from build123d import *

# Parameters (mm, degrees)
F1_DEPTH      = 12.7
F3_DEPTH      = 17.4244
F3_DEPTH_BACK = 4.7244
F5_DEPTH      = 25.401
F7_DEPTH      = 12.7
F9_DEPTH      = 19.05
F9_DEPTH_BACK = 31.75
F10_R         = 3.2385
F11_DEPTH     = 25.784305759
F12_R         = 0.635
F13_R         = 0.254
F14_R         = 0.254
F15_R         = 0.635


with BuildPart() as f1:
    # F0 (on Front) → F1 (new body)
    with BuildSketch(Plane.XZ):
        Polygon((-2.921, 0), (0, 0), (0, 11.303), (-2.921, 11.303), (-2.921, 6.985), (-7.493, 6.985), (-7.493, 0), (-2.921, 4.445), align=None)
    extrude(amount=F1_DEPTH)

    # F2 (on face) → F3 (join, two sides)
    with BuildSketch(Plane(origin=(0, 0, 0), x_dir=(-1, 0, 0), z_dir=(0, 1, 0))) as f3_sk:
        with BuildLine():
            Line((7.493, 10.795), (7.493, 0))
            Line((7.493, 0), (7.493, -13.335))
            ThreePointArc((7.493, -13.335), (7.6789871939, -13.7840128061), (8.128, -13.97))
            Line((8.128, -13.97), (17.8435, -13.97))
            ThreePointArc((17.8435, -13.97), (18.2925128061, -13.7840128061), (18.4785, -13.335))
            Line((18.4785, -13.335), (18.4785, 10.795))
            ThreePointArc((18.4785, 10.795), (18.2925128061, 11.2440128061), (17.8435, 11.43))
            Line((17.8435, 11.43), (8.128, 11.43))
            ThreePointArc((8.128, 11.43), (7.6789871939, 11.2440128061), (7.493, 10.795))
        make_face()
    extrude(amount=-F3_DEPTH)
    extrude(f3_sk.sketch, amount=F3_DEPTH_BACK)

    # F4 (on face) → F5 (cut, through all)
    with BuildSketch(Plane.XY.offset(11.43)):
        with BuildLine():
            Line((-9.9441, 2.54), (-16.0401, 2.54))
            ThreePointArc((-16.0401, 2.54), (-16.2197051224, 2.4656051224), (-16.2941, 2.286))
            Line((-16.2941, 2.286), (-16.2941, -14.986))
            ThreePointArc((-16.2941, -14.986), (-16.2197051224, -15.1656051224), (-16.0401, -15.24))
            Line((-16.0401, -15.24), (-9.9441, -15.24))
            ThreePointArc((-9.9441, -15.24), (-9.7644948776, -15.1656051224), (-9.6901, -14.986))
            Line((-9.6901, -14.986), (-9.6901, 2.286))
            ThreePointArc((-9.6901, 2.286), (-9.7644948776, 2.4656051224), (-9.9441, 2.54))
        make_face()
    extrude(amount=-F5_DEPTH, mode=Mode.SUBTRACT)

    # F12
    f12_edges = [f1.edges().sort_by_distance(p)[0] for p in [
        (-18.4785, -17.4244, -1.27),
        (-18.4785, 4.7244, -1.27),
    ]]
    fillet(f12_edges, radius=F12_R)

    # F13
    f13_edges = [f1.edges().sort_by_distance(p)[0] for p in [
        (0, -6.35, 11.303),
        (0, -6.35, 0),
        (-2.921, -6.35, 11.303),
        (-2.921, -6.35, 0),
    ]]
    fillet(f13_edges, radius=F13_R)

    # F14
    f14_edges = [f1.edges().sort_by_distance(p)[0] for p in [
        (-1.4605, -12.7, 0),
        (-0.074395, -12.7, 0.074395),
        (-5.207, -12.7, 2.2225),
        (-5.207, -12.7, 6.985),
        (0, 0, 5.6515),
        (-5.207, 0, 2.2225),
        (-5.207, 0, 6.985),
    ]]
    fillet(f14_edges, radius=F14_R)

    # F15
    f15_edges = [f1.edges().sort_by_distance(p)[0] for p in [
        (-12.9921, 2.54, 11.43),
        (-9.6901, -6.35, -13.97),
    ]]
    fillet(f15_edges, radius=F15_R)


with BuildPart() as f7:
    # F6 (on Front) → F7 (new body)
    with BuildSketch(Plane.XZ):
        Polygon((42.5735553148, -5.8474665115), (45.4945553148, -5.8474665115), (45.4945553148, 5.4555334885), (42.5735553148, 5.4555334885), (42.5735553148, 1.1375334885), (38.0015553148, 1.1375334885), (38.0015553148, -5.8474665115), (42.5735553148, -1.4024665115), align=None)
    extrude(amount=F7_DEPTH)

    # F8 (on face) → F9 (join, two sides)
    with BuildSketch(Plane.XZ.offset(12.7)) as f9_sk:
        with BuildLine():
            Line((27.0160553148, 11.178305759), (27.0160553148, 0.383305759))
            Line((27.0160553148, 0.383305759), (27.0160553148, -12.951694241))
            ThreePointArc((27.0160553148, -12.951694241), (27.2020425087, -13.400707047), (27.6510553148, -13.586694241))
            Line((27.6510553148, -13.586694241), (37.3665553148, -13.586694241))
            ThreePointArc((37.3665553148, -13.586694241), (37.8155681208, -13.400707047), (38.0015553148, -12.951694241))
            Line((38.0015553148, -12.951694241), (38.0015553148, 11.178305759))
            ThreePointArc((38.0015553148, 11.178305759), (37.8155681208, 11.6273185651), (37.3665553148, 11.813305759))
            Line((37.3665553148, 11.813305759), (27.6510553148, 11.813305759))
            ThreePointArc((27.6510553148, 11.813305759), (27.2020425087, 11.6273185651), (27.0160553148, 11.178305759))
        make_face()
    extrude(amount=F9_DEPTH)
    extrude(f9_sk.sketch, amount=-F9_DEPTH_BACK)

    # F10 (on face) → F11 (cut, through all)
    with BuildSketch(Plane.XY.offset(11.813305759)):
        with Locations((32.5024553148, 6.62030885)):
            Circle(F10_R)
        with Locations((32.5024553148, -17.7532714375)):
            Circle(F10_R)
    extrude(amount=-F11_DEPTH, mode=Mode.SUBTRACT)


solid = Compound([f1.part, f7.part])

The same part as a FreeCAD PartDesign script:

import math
import FreeCAD as App
import Part
import Sketcher

V = App.Vector
Q = App.Units.Quantity


def edges_at(feature, points):
    """Names of the edges that pass closest to the given points."""
    edges = feature.Shape.Edges
    near = lambda p: min(range(len(edges)), key=lambda i: edges[i].distToShape(Part.Vertex(*p))[0])
    return sorted({f"Edge{near(p) + 1}" for p in points})


def add_polygon(sketch, points):
    """Adds a closed chain of lines whose ends are joined by coincident constraints."""
    first, n = sketch.GeometryCount, len(points)
    for a, b in zip(points, points[1:] + points[:1]):
        sketch.addGeometry(Part.LineSegment(App.Vector(*a, 0), App.Vector(*b, 0)), False)
    for i in range(n):
        sketch.addConstraint(Sketcher.Constraint("Coincident", first + i, 2, first + (i + 1) % n, 1))

doc = App.newDocument("Part")
body = doc.addObject("PartDesign::Body", "Body")

sketch1 = doc.addObject("Sketcher::SketchObject", "Sketch")
body.addObject(sketch1)
sketch1.AttachmentSupport = (doc.XZ_Plane, [""])
sketch1.MapMode = "FlatFace"
add_polygon(sketch1, [(-2.921, 0), (0, 0), (0, 11.303), (-2.921, 11.303), (-2.921, 6.985), (-7.493, 6.985), (-7.493, 0), (-2.921, 4.445)])
sketch1.addConstraint(Sketcher.Constraint("Horizontal", 0))
sketch1.addConstraint(Sketcher.Constraint("Vertical", 1))
sketch1.addConstraint(Sketcher.Constraint("Horizontal", 2))
sketch1.addConstraint(Sketcher.Constraint("Vertical", 3))
sketch1.addConstraint(Sketcher.Constraint("Horizontal", 4))
sketch1.addConstraint(Sketcher.Constraint("Vertical", 5))
sketch1.addConstraint(Sketcher.Constraint("Vertical", 7))
sketch1.addConstraint(Sketcher.Constraint("Coincident", 0, 2, -1, 1))
sketch1.addConstraint(Sketcher.Constraint("PointOnObject", 5, 2, -1))
sketch1.addConstraint(Sketcher.Constraint("Vertical", 3, 2, 6, 2))
sketch1.addConstraint(Sketcher.Constraint("DistanceX", 4, 2, 4, 1, Q("0.18 in")))
sketch1.addConstraint(Sketcher.Constraint("DistanceY", 3, 2, 3, 1, Q("0.17 in")))
sketch1.addConstraint(Sketcher.Constraint("DistanceY", 6, 2, 3, 2, Q("0.1 in")))
sketch1.addConstraint(Sketcher.Constraint("DistanceX", 0, 1, 0, 2, Q("0.115 in")))
sketch1.addConstraint(Sketcher.Constraint("DistanceY", 1, 1, 1, 2, Q("0.445 in")))
pad1 = doc.addObject("PartDesign::Pad", "Pad")
body.addObject(pad1)
pad1.Profile = sketch1
pad1.Length = Q("0.5 in")

sketch2 = doc.addObject("Sketcher::SketchObject", "Sketch001")
body.addObject(sketch2)
sketch2.AttachmentSupport = (doc.XZ_Plane, [""])
sketch2.MapMode = "FlatFace"
sketch2.addGeometry(Part.LineSegment(V(-7.493, 10.795, 0), V(-7.493, -13.335, 0)), False)
sketch2.addGeometry(Part.ArcOfCircle(Part.Circle(V(-8.128, -13.335, 0), V(0, 0, 1), 0.635), math.radians(-90), math.radians(0)), False)
sketch2.addGeometry(Part.LineSegment(V(-8.128, -13.97, 0), V(-17.8435, -13.97, 0)), False)
sketch2.addGeometry(Part.ArcOfCircle(Part.Circle(V(-17.8435, -13.335, 0), V(0, 0, 1), 0.635), math.radians(180), math.radians(270)), False)
sketch2.addGeometry(Part.LineSegment(V(-18.4785, -13.335, 0), V(-18.4785, 10.795, 0)), False)
sketch2.addGeometry(Part.ArcOfCircle(Part.Circle(V(-17.8435, 10.795, 0), V(0, 0, 1), 0.635), math.radians(90), math.radians(180)), False)
sketch2.addGeometry(Part.LineSegment(V(-17.8435, 11.43, 0), V(-8.128, 11.43, 0)), False)
sketch2.addGeometry(Part.ArcOfCircle(Part.Circle(V(-8.128, 10.795, 0), V(0, 0, 1), 0.635), math.radians(0), math.radians(90)), False)
sketch2.addConstraint(Sketcher.Constraint("Tangent", 0, 2, 1, 2))
sketch2.addConstraint(Sketcher.Constraint("Tangent", 1, 1, 2, 1))
sketch2.addConstraint(Sketcher.Constraint("Tangent", 2, 2, 3, 2))
sketch2.addConstraint(Sketcher.Constraint("Tangent", 3, 1, 4, 1))
sketch2.addConstraint(Sketcher.Constraint("Tangent", 4, 2, 5, 2))
sketch2.addConstraint(Sketcher.Constraint("Tangent", 5, 1, 6, 1))
sketch2.addConstraint(Sketcher.Constraint("Tangent", 6, 2, 7, 2))
sketch2.addConstraint(Sketcher.Constraint("Tangent", 7, 1, 0, 1))
sketch2.addConstraint(Sketcher.Constraint("Vertical", 0))
sketch2.addConstraint(Sketcher.Constraint("Horizontal", 2))
sketch2.addConstraint(Sketcher.Constraint("Vertical", 4))
sketch2.addConstraint(Sketcher.Constraint("Horizontal", 6))
sketch2.addConstraint(Sketcher.Constraint("Equal", 1, 3))
sketch2.addConstraint(Sketcher.Constraint("Equal", 3, 5))
sketch2.addConstraint(Sketcher.Constraint("Equal", 5, 7))
sketch2.addConstraint(Sketcher.Constraint("Radius", 1, Q("0.025 in")))
sketch2.addConstraint(Sketcher.Constraint("DistanceY", 0, 2, 0, 1, Q("0.95 in")))
sketch2.addConstraint(Sketcher.Constraint("DistanceX", 1, 3, -1, 1, Q("0.32 in")))
sketch2.addConstraint(Sketcher.Constraint("DistanceY", 1, 1, -1, 1, Q("0.55 in")))
sketch2.addConstraint(Sketcher.Constraint("DistanceX", 2, 2, 2, 1, Q("0.3825 in")))
pad2 = doc.addObject("PartDesign::Pad", "Pad001")
body.addObject(pad2)
pad2.Profile = sketch2
pad2.Type = "TwoLengths"
pad2.Length = Q("0.686 in")
pad2.Length2 = Q("0.186 in")

sketch3 = doc.addObject("Sketcher::SketchObject", "Sketch002")
body.addObject(sketch3)
sketch3.AttachmentSupport = (doc.XY_Plane, [""])
sketch3.MapMode = "FlatFace"
sketch3.AttachmentOffset = App.Placement(V(0, 0, 0.45 * 25.4), App.Rotation())
sketch3.addGeometry(Part.LineSegment(V(-9.9441, 2.54, 0), V(-16.0401, 2.54, 0)), False)
sketch3.addGeometry(Part.ArcOfCircle(Part.Circle(V(-16.0401, 2.286, 0), V(0, 0, 1), 0.254), math.radians(90), math.radians(180)), False)
sketch3.addGeometry(Part.LineSegment(V(-16.2941, 2.286, 0), V(-16.2941, -14.986, 0)), False)
sketch3.addGeometry(Part.ArcOfCircle(Part.Circle(V(-16.0401, -14.986, 0), V(0, 0, 1), 0.254), math.radians(180), math.radians(270)), False)
sketch3.addGeometry(Part.LineSegment(V(-16.0401, -15.24, 0), V(-9.9441, -15.24, 0)), False)
sketch3.addGeometry(Part.ArcOfCircle(Part.Circle(V(-9.9441, -14.986, 0), V(0, 0, 1), 0.254), math.radians(-90), math.radians(0)), False)
sketch3.addGeometry(Part.LineSegment(V(-9.6901, -14.986, 0), V(-9.6901, 2.286, 0)), False)
sketch3.addGeometry(Part.ArcOfCircle(Part.Circle(V(-9.9441, 2.286, 0), V(0, 0, 1), 0.254), math.radians(0), math.radians(90)), False)
sketch3.addConstraint(Sketcher.Constraint("Tangent", 0, 2, 1, 1))
sketch3.addConstraint(Sketcher.Constraint("Tangent", 1, 2, 2, 1))
sketch3.addConstraint(Sketcher.Constraint("Tangent", 2, 2, 3, 1))
sketch3.addConstraint(Sketcher.Constraint("Tangent", 3, 2, 4, 1))
sketch3.addConstraint(Sketcher.Constraint("Tangent", 4, 2, 5, 1))
sketch3.addConstraint(Sketcher.Constraint("Tangent", 5, 2, 6, 1))
sketch3.addConstraint(Sketcher.Constraint("Tangent", 6, 2, 7, 1))
sketch3.addConstraint(Sketcher.Constraint("Tangent", 7, 2, 0, 1))
sketch3.addConstraint(Sketcher.Constraint("Horizontal", 0))
sketch3.addConstraint(Sketcher.Constraint("Vertical", 2))
sketch3.addConstraint(Sketcher.Constraint("Horizontal", 4))
sketch3.addConstraint(Sketcher.Constraint("Vertical", 6))
sketch3.addConstraint(Sketcher.Constraint("Equal", 1, 3))
sketch3.addConstraint(Sketcher.Constraint("Equal", 3, 5))
sketch3.addConstraint(Sketcher.Constraint("Equal", 5, 7))
sketch3.addConstraint(Sketcher.Constraint("Radius", 1, Q("0.01 in")))
sketch3.addConstraint(Sketcher.Constraint("DistanceX", 0, 2, 0, 1, Q("0.24 in")))
sketch3.addConstraint(Sketcher.Constraint("DistanceY", 2, 2, 2, 1, Q("0.68 in")))
sketch3.addConstraint(Sketcher.Constraint("DistanceY", -1, 1, 0, 2, Q("0.1 in")))
sketch3.addConstraint(Sketcher.Constraint("DistanceX", 1, 3, -1, 1, Q("0.6315 in")))
pocket1 = doc.addObject("PartDesign::Pocket", "Pocket")
body.addObject(pocket1)
pocket1.Profile = sketch3
pocket1.Type = "ThroughAll"
doc.recompute()

fillet = doc.addObject("PartDesign::Fillet", "Fillet")
body.addObject(fillet)
fillet.Base = (pocket1, edges_at(pocket1, [(-18.479, -17.424, -1.27), (-18.479, 4.724, -1.27)]))
fillet.Radius = Q("0.025 in")
doc.recompute()

fillet2 = doc.addObject("PartDesign::Fillet", "Fillet001")
body.addObject(fillet2)
fillet2.Base = (fillet, edges_at(fillet, [
    (0, -6.35, 11.303),
    (0, -6.35, 0),
    (-2.921, -6.35, 11.303),
    (-2.921, -6.35, 0),
]))
fillet2.Radius = Q("0.01 in")
doc.recompute()

fillet3 = doc.addObject("PartDesign::Fillet", "Fillet002")
body.addObject(fillet3)
fillet3.Base = (fillet2, edges_at(fillet2, [
    (-1.46, -12.7, 0),
    (-0.074, -12.7, 0.074),
    (-5.207, -12.7, 2.223),
    (-5.207, -12.7, 6.985),
    (0, 0, 5.652),
    (-5.207, 0, 2.223),
    (-5.207, 0, 6.985),
]))
fillet3.Radius = Q("0.01 in")
doc.recompute()

fillet4 = doc.addObject("PartDesign::Fillet", "Fillet003")
body.addObject(fillet4)
fillet4.Base = (fillet3, edges_at(fillet3, [(-12.992, 2.54, 11.43), (-9.69, -6.35, -13.97)]))
fillet4.Radius = Q("0.025 in")
body2 = doc.addObject("PartDesign::Body", "Body001")

sketch4 = doc.addObject("Sketcher::SketchObject", "Sketch003")
body2.addObject(sketch4)
sketch4.AttachmentSupport = (doc.getObject("XZ_Plane001"), [""])
sketch4.MapMode = "FlatFace"
add_polygon(sketch4, [(42.573555, -5.847467), (45.494555, -5.847467), (45.494555, 5.455533), (42.573555, 5.455533), (42.573555, 1.137533), (38.001555, 1.137533), (38.001555, -5.847467), (42.573555, -1.402467)])
sketch4.addConstraint(Sketcher.Constraint("Horizontal", 0))
sketch4.addConstraint(Sketcher.Constraint("Vertical", 1))
sketch4.addConstraint(Sketcher.Constraint("Horizontal", 2))
sketch4.addConstraint(Sketcher.Constraint("Vertical", 3))
sketch4.addConstraint(Sketcher.Constraint("Horizontal", 4))
sketch4.addConstraint(Sketcher.Constraint("Vertical", 5))
sketch4.addConstraint(Sketcher.Constraint("Vertical", 7))
sketch4.addConstraint(Sketcher.Constraint("Horizontal", 0, 2, 5, 2))
sketch4.addConstraint(Sketcher.Constraint("Vertical", 3, 2, 6, 2))
sketch4.addConstraint(Sketcher.Constraint("DistanceX", 4, 2, 4, 1, Q("0.18 in")))
sketch4.addConstraint(Sketcher.Constraint("DistanceY", 3, 2, 3, 1, Q("0.17 in")))
sketch4.addConstraint(Sketcher.Constraint("DistanceY", 6, 2, 3, 2, Q("0.1 in")))
sketch4.addConstraint(Sketcher.Constraint("DistanceX", 0, 1, 0, 2, Q("0.115 in")))
sketch4.addConstraint(Sketcher.Constraint("DistanceY", 1, 1, 1, 2, Q("0.445 in")))
sketch4.addConstraint(Sketcher.Constraint("DistanceX", -1, 1, 0, 2, Q("45.494555 mm")))
sketch4.addConstraint(Sketcher.Constraint("DistanceY", 0, 2, -1, 1, Q("5.847467 mm")))
pad3 = doc.addObject("PartDesign::Pad", "Pad002")
body2.addObject(pad3)
pad3.Profile = sketch4
pad3.Length = Q("0.5 in")

sketch5 = doc.addObject("Sketcher::SketchObject", "Sketch004")
body2.addObject(sketch5)
sketch5.AttachmentSupport = (doc.getObject("XZ_Plane001"), [""])
sketch5.MapMode = "FlatFace"
sketch5.AttachmentOffset = App.Placement(V(0, 0, 0.5 * 25.4), App.Rotation())
sketch5.addGeometry(Part.LineSegment(V(27.016055, 11.178306, 0), V(27.016055, -12.951694, 0)), False)
sketch5.addGeometry(Part.ArcOfCircle(Part.Circle(V(27.651055, -12.951694, 0), V(0, 0, 1), 0.635), math.radians(180), math.radians(270)), False)
sketch5.addGeometry(Part.LineSegment(V(27.651055, -13.586694, 0), V(37.366555, -13.586694, 0)), False)
sketch5.addGeometry(Part.ArcOfCircle(Part.Circle(V(37.366555, -12.951694, 0), V(0, 0, 1), 0.635), math.radians(-90), math.radians(0)), False)
sketch5.addGeometry(Part.LineSegment(V(38.001555, -12.951694, 0), V(38.001555, 11.178306, 0)), False)
sketch5.addGeometry(Part.ArcOfCircle(Part.Circle(V(37.366555, 11.178306, 0), V(0, 0, 1), 0.635), math.radians(0), math.radians(90)), False)
sketch5.addGeometry(Part.LineSegment(V(37.366555, 11.813306, 0), V(27.651055, 11.813306, 0)), False)
sketch5.addGeometry(Part.ArcOfCircle(Part.Circle(V(27.651055, 11.178306, 0), V(0, 0, 1), 0.635), math.radians(90), math.radians(180)), False)
sketch5.addConstraint(Sketcher.Constraint("Tangent", 0, 2, 1, 1))
sketch5.addConstraint(Sketcher.Constraint("Tangent", 1, 2, 2, 1))
sketch5.addConstraint(Sketcher.Constraint("Tangent", 2, 2, 3, 1))
sketch5.addConstraint(Sketcher.Constraint("Tangent", 3, 2, 4, 1))
sketch5.addConstraint(Sketcher.Constraint("Tangent", 4, 2, 5, 1))
sketch5.addConstraint(Sketcher.Constraint("Tangent", 5, 2, 6, 1))
sketch5.addConstraint(Sketcher.Constraint("Tangent", 6, 2, 7, 1))
sketch5.addConstraint(Sketcher.Constraint("Tangent", 7, 2, 0, 1))
sketch5.addConstraint(Sketcher.Constraint("Vertical", 0))
sketch5.addConstraint(Sketcher.Constraint("Horizontal", 2))
sketch5.addConstraint(Sketcher.Constraint("Vertical", 4))
sketch5.addConstraint(Sketcher.Constraint("Horizontal", 6))
sketch5.addConstraint(Sketcher.Constraint("Equal", 1, 3))
sketch5.addConstraint(Sketcher.Constraint("Equal", 3, 5))
sketch5.addConstraint(Sketcher.Constraint("Equal", 5, 7))
sketch5.addConstraint(Sketcher.Constraint("Radius", 1, Q("0.025 in")))
sketch5.addConstraint(Sketcher.Constraint("DistanceY", 0, 2, 0, 1, Q("0.95 in")))
sketch5.addConstraint(Sketcher.Constraint("DistanceX", 2, 1, 2, 2, Q("0.3825 in")))
sketch5.addConstraint(Sketcher.Constraint("DistanceX", -1, 1, 1, 3, Q("27.651055 mm")))
sketch5.addConstraint(Sketcher.Constraint("DistanceY", 1, 3, -1, 1, Q("12.951694 mm")))
pad4 = doc.addObject("PartDesign::Pad", "Pad003")
body2.addObject(pad4)
pad4.Profile = sketch5
pad4.Type = "TwoLengths"
pad4.Length = Q("0.75 in")
pad4.Length2 = Q("1.25 in")

sketch6 = doc.addObject("Sketcher::SketchObject", "Sketch005")
body2.addObject(sketch6)
sketch6.AttachmentSupport = (doc.getObject("XY_Plane001"), [""])
sketch6.MapMode = "FlatFace"
sketch6.AttachmentOffset = App.Placement(V(0, 0, 11.813306), App.Rotation())
sketch6.addGeometry(Part.Circle(V(32.502455, 6.620309, 0), V(0, 0, 1), 3.2385), False)
sketch6.addGeometry(Part.Circle(V(32.502455, -17.753271, 0), V(0, 0, 1), 3.2385), False)
sketch6.addConstraint(Sketcher.Constraint("Equal", 0, 1))
sketch6.addConstraint(Sketcher.Constraint("Vertical", 0, 3, 1, 3))
sketch6.addConstraint(Sketcher.Constraint("Diameter", 0, Q("0.255 in")))
sketch6.addConstraint(Sketcher.Constraint("DistanceY", -1, 1, 0, 3, Q("6.620309 mm")))
sketch6.addConstraint(Sketcher.Constraint("DistanceY", 1, 3, -1, 1, Q("17.753271 mm")))
sketch6.addConstraint(Sketcher.Constraint("DistanceX", -1, 1, 0, 3, Q("32.502455 mm")))
pocket2 = doc.addObject("PartDesign::Pocket", "Pocket001")
body2.addObject(pocket2)
pocket2.Profile = sketch6
pocket2.Type = "ThroughAll"

doc.recompute()
